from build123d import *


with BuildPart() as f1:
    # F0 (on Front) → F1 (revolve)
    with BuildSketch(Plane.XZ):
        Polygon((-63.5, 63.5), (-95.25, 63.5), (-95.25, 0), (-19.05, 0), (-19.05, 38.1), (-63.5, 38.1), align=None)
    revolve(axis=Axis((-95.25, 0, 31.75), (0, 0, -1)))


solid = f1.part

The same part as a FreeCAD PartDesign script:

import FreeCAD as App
import Part
import Sketcher
Q = App.Units.Quantity


def add_polygon(sketch, points):
    """Adds a closed chain of lines whose ends are joined by coincident constraints."""
    first, n = sketch.GeometryCount, len(points)
    for a, b in zip(points, points[1:] + points[:1]):
        sketch.addGeometry(Part.LineSegment(App.Vector(*a, 0), App.Vector(*b, 0)), False)
    for i in range(n):
        sketch.addConstraint(Sketcher.Constraint("Coincident", first + i, 2, first + (i + 1) % n, 1))

doc = App.newDocument("Part")
params = doc.addObject("Spreadsheet::Sheet", "Params")
for row, (alias, value) in enumerate([
    ("sketch1_width", "3 in"),
    ("sketch1_height", "1 in"),
    ("sketch1_height2", "2.5 in"),
    ("sketch1_width2", "1.25 in"),
    ("revolution_angle", "360 deg"),
], start=1):
    params.set(f"A{row}", alias)
    params.set(f"B{row}", "=" + value)
    params.setAlias(f"B{row}", alias)

body = doc.addObject("PartDesign::Body", "Body")

# Sketch on XZ plane
sketch1 = body.newObject("Sketcher::SketchObject", "Sketch")
sketch1.AttachmentSupport = (doc.getObject("XZ_Plane"), [""])
sketch1.MapMode = "FlatFace"
add_polygon(sketch1, [(-63.5, 63.5), (-95.25, 63.5), (-95.25, 0), (-19.05, 0), (-19.05, 38.1), (-63.5, 38.1)])  # lines 0-5
sketch1.addGeometry(Part.LineSegment(App.Vector(-95.25, 63.5, 0), App.Vector(-95.25, 0, 0)), True)  # axis
sketch1.addConstraint([
    Sketcher.Constraint("Horizontal", 0),
    Sketcher.Constraint("Vertical", 1),
    Sketcher.Constraint("Horizontal", 2),
    Sketcher.Constraint("Vertical", 3),
    Sketcher.Constraint("Horizontal", 4),
    Sketcher.Constraint("Vertical", 5),
    Sketcher.Constraint("Vertical", 6),
    Sketcher.Constraint("Coincident", 6, 1, 0, 2),
    Sketcher.Constraint("PointOnObject", 1, 2, -1),
    Sketcher.Constraint("PointOnObject", 6, 2, -1),
    Sketcher.Constraint("DistanceX", 2, 1, 2, 2, Q("3 in")),
    Sketcher.Constraint("DistanceY", 5, 1, 5, 2, Q("1 in")),
    Sketcher.Constraint("DistanceY", 1, 2, 1, 1, Q("2.5 in")),
    Sketcher.Constraint("DistanceX", 0, 2, 0, 1, Q("1.25 in")),
    Sketcher.Constraint("DistanceX", 4, 2, -1, 1, Q("2.5 in")),
])
sketch1.setExpression("Constraints[16]", "Params.sketch1_width")
sketch1.setExpression("Constraints[17]", "Params.sketch1_height")
sketch1.setExpression("Constraints[18]", "Params.sketch1_height2")
sketch1.setExpression("Constraints[19]", "Params.sketch1_width2")
revolution = body.newObject("PartDesign::Revolution", "Revolution")
revolution.Profile = sketch1
revolution.ReferenceAxis = (sketch1, ["Axis0"])
revolution.setExpression("Angle", "Params.revolution_angle")

doc.recompute()
